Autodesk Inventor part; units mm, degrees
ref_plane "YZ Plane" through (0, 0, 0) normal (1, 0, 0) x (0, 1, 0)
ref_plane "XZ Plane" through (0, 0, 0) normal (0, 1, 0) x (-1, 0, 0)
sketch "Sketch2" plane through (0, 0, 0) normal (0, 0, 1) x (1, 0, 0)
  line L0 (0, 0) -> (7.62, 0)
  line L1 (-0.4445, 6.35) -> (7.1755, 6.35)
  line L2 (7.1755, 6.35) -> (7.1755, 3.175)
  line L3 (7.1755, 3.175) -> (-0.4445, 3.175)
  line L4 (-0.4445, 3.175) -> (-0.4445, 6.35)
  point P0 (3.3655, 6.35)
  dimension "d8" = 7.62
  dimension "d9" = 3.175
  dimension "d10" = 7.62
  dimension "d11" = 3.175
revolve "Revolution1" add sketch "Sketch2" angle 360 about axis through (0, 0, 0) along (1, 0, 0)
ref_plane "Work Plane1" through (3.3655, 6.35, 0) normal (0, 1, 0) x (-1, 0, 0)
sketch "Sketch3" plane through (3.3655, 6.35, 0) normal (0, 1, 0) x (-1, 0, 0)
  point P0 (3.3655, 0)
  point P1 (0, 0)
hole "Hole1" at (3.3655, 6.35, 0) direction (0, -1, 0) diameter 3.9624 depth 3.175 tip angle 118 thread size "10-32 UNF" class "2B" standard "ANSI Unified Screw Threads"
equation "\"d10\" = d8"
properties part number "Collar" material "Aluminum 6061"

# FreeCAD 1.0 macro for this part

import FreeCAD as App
import Part
import Sketcher
Q = App.Units.Quantity


def add_polygon(sketch, points):
    """Adds a closed chain of lines whose ends are joined by coincident constraints."""
    first, n = sketch.GeometryCount, len(points)
    for a, b in zip(points, points[1:] + points[:1]):
        sketch.addGeometry(Part.LineSegment(App.Vector(*a, 0), App.Vector(*b, 0)), False)
    for i in range(n):
        sketch.addConstraint(Sketcher.Constraint("Coincident", first + i, 2, first + (i + 1) % n, 1))

doc = App.newDocument("Part")
body = doc.addObject("PartDesign::Body", "Body")

# Sketch on XY plane
sketch1 = body.newObject("Sketcher::SketchObject", "Sketch")
sketch1.AttachmentSupport = (doc.getObject("XY_Plane"), [""])
sketch1.MapMode = "FlatFace"
add_polygon(sketch1, [(7.2, 6.3), (-0.4, 6.3), (-0.4, 3.2), (7.2, 3.2)])  # lines 0-3
sketch1.addConstraint(Sketcher.Constraint("Horizontal", 0))
sketch1.addConstraint(Sketcher.Constraint("Vertical", 1))
sketch1.addConstraint(Sketcher.Constraint("Horizontal", 2))
sketch1.addConstraint(Sketcher.Constraint("Vertical", 3))
sketch1.addConstraint(Sketcher.Constraint("DistanceX", 0, 2, 0, 1, Q("0.3 in")))
sketch1.addConstraint(Sketcher.Constraint("DistanceY", 1, 2, 1, 1, Q("0.125 in")))
sketch1.addConstraint(Sketcher.Constraint("DistanceY", -1, 1, 1, 2, Q("0.125 in")))
sketch1.addConstraint(Sketcher.Constraint("DistanceX", 0, 2, -1, 1, Q("0.0175 in")))
revolution = body.newObject("PartDesign::Revolution", "Revolution")
revolution.Profile = sketch1
revolution.ReferenceAxis = (sketch1, ["H_Axis"])
revolution.Angle = 360

# Sketch on XZ plane
sketch2 = body.newObject("Sketcher::SketchObject", "Sketch001")
sketch2.AttachmentSupport = (doc.getObject("XZ_Plane"), [""])
sketch2.MapMode = "FlatFace"
sketch2.AttachmentOffset = App.Placement(App.Vector(0, 0, -0.25 * 25.4), App.Rotation())
sketch2.addGeometry(Part.Circle(App.Vector(3.4, 0, 0), App.Vector(0, 0, 1), 2), False)
sketch2.addConstraint(Sketcher.Constraint("PointOnObject", 0, 3, -1))
sketch2.addConstraint(Sketcher.Constraint("Diameter", 0, Q("0.156 in")))
sketch2.addConstraint(Sketcher.Constraint("DistanceX", -1, 1, 0, 3, Q("0.1325 in")))
doc.recompute()
hole = body.newObject("PartDesign::Hole", "Hole")
hole.Profile = sketch2
hole.ThreadType = "None"
hole.Diameter = Q("0.156 in")
hole.DepthType = "Dimension"
hole.Depth = Q("0.125 in")
hole.DrillPoint = "Angled"
hole.DrillPointAngle = 118
hole.Reversed = True

doc.recompute()
